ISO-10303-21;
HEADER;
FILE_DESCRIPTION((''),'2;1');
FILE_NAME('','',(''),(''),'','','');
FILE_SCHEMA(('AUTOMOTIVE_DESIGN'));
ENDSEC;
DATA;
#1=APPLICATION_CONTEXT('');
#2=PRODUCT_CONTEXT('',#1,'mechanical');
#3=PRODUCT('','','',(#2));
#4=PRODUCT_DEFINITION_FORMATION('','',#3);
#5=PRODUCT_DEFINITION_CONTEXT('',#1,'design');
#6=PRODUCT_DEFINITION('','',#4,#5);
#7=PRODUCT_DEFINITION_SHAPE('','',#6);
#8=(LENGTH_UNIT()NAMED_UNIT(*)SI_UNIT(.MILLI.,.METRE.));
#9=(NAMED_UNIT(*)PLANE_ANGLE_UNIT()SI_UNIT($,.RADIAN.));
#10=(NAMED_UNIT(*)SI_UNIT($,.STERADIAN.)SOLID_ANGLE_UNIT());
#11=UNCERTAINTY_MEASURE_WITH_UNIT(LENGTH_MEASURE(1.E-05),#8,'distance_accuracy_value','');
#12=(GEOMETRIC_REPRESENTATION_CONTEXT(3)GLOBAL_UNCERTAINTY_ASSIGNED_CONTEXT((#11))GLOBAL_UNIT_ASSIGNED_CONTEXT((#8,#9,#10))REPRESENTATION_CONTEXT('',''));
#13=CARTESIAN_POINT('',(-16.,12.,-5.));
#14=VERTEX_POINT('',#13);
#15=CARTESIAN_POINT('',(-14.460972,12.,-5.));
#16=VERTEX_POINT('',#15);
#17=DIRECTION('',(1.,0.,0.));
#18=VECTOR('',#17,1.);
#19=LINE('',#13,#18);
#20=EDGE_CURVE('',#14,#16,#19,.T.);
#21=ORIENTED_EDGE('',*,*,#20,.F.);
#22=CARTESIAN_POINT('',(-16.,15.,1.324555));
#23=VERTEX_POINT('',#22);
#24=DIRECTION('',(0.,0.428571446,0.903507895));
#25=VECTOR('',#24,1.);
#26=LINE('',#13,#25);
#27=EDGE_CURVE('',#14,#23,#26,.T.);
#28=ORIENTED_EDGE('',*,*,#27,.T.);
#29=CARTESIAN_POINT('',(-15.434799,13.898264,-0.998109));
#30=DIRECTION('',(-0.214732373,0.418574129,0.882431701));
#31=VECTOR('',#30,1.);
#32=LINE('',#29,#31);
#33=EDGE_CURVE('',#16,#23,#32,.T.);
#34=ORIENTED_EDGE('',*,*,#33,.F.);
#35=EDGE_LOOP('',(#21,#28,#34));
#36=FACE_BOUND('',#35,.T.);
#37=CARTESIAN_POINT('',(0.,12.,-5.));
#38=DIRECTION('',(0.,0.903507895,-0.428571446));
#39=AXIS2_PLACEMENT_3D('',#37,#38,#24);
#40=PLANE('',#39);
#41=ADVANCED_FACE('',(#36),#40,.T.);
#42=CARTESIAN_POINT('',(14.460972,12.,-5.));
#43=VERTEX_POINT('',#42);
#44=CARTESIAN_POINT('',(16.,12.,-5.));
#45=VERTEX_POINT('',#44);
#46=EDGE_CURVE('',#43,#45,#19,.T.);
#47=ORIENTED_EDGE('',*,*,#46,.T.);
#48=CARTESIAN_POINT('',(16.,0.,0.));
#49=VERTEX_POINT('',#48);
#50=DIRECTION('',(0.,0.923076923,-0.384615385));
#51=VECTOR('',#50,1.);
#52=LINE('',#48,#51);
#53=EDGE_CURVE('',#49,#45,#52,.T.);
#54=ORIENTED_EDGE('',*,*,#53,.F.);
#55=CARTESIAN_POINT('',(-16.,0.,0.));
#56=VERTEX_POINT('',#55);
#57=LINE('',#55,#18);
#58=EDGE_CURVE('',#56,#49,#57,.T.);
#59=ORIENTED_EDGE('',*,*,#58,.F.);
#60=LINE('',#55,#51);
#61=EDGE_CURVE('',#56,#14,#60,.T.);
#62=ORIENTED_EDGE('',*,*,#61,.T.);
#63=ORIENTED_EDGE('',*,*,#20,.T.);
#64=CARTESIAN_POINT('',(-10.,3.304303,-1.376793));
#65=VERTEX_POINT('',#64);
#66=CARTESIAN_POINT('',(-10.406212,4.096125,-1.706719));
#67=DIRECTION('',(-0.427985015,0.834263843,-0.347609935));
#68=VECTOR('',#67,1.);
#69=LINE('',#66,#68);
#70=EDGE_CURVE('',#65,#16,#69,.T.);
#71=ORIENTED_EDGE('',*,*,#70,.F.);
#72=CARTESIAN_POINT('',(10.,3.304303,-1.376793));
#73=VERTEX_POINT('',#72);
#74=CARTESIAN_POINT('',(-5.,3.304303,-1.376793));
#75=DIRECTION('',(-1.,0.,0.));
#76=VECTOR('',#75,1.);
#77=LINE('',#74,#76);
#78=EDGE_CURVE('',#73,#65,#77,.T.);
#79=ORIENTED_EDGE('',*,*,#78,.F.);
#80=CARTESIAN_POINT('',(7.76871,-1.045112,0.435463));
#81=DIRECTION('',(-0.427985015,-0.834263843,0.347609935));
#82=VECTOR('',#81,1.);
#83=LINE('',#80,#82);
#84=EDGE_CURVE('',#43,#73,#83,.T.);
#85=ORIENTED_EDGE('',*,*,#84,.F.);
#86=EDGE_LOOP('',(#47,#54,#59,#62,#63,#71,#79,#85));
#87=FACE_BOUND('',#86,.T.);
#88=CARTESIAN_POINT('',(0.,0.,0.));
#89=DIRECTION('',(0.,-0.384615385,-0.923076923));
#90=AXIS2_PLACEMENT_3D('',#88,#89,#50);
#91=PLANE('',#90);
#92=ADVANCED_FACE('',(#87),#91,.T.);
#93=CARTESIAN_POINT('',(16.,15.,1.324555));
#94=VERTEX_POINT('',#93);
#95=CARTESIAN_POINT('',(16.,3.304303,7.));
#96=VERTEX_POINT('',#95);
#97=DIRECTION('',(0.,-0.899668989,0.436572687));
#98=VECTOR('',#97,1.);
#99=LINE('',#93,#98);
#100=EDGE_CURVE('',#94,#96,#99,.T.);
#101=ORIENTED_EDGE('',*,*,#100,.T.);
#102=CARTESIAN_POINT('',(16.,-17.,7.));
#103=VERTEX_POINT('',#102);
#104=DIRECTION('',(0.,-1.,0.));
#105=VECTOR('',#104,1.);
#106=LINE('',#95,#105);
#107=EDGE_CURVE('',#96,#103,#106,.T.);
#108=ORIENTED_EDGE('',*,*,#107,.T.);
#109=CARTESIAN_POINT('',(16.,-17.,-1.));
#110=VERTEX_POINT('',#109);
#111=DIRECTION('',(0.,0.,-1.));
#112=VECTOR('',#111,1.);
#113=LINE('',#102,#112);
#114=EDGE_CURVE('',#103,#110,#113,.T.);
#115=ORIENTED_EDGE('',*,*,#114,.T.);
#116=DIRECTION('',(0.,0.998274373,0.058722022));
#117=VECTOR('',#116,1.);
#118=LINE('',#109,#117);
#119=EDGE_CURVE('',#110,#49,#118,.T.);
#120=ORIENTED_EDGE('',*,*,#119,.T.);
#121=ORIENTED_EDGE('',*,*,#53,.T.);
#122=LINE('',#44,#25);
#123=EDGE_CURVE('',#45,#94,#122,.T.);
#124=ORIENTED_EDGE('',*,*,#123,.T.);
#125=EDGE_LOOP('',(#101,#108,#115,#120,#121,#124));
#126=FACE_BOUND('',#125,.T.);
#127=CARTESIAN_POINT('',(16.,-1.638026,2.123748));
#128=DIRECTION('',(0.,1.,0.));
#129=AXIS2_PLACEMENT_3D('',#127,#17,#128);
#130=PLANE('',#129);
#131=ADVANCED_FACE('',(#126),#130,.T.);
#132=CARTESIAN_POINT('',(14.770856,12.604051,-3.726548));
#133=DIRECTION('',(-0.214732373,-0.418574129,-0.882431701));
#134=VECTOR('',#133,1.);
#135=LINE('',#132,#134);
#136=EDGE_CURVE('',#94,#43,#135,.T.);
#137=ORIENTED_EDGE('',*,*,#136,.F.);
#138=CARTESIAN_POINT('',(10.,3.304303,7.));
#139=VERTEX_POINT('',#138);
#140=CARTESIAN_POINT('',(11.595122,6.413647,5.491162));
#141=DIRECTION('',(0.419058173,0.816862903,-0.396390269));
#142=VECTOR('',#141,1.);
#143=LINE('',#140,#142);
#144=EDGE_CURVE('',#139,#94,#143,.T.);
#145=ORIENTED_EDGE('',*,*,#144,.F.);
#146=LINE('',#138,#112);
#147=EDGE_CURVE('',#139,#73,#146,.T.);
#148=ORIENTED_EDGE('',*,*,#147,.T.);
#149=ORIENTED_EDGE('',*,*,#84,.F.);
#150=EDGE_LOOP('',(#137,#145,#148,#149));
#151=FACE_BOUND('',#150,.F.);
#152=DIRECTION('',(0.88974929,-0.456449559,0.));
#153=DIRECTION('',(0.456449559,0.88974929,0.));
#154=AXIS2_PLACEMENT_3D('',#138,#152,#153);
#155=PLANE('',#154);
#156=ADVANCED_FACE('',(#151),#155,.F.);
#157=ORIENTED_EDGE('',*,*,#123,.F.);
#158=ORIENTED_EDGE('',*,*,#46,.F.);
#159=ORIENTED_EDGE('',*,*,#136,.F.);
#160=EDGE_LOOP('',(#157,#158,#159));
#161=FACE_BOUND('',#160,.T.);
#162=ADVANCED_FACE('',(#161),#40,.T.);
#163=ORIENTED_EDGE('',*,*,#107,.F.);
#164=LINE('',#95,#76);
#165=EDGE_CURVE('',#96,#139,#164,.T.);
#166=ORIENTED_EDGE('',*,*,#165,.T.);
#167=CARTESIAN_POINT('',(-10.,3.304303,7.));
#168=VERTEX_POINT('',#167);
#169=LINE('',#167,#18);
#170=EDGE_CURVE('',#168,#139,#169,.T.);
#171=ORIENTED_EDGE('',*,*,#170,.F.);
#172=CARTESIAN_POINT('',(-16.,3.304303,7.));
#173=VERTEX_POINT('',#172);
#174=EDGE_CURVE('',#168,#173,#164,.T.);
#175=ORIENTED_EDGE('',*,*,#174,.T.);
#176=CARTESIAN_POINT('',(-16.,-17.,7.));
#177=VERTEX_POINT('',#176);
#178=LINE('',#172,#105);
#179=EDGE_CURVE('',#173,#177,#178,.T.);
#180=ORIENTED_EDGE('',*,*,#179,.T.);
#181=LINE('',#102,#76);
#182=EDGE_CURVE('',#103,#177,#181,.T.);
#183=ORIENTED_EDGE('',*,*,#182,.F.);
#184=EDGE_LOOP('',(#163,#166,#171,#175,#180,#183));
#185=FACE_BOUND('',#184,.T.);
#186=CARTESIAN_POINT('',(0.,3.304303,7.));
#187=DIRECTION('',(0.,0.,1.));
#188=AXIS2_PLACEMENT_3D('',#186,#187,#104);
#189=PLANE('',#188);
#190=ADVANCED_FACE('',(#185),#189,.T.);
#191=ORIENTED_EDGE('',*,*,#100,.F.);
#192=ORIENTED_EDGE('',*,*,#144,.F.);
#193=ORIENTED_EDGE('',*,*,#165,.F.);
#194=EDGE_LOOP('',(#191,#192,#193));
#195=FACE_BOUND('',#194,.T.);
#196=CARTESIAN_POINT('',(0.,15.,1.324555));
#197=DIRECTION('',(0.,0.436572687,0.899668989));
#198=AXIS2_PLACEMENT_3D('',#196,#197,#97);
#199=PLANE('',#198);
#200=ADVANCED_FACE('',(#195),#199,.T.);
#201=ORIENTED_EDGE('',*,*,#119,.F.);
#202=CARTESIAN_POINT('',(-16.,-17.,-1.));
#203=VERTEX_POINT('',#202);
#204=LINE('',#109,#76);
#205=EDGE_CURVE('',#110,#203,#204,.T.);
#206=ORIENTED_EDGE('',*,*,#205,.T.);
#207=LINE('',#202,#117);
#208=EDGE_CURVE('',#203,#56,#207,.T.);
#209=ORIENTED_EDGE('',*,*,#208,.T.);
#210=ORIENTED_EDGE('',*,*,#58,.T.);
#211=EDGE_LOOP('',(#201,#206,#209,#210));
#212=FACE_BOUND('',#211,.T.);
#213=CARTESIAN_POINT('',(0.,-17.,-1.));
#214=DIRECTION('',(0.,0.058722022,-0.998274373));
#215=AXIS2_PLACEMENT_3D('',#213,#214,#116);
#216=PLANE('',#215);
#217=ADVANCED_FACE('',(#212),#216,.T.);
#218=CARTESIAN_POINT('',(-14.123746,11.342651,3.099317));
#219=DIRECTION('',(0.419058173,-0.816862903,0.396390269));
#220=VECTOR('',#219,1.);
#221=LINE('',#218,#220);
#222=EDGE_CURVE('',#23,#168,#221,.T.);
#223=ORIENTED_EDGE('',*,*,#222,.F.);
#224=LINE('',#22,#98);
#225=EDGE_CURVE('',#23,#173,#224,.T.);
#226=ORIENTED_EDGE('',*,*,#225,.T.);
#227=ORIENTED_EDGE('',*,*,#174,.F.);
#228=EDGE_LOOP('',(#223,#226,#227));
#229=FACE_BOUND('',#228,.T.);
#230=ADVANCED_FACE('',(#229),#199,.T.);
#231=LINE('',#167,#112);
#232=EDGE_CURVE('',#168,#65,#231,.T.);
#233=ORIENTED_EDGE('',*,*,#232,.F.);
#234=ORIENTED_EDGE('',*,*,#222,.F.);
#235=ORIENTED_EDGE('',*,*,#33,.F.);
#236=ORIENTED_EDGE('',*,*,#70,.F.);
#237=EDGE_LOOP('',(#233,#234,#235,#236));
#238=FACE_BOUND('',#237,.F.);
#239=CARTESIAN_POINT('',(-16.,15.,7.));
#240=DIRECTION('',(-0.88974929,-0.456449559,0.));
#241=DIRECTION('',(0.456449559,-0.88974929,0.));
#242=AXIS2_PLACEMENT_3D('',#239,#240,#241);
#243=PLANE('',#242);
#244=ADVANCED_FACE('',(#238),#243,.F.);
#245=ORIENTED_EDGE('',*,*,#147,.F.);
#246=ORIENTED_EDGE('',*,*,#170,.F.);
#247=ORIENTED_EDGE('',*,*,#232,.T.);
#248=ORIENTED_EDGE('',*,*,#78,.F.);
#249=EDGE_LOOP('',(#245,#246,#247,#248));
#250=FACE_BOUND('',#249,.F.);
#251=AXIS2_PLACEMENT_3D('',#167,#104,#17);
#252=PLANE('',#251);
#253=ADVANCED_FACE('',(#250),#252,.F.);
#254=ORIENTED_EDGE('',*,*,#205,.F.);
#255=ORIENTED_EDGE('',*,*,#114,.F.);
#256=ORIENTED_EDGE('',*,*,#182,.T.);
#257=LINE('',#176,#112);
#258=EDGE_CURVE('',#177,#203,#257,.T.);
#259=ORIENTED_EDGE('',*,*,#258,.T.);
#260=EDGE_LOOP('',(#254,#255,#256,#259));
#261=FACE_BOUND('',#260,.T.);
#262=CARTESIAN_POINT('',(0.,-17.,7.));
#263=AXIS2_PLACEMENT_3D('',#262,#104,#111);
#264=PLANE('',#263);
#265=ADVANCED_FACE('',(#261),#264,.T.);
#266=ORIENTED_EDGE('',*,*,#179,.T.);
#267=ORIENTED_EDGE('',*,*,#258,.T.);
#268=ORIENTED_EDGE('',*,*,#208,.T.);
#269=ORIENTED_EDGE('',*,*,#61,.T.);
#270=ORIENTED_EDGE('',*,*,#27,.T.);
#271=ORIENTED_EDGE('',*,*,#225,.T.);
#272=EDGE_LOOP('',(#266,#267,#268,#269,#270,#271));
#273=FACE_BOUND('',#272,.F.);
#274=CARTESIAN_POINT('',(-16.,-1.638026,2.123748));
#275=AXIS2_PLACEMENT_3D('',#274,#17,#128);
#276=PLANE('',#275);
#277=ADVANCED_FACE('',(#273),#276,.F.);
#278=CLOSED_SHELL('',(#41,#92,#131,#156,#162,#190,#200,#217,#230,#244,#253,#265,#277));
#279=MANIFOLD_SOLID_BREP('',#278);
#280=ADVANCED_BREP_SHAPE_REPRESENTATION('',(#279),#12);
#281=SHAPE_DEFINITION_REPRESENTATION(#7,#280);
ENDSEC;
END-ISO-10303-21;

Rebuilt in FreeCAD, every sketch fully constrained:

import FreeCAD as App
import Part
import Sketcher
Q = App.Units.Quantity

doc = App.newDocument("Part")
body = doc.addObject("PartDesign::Body", "Body")

# Sketch on YZ plane
sketch1 = doc.addObject("Sketcher::SketchObject", "Sketch")
body.addObject(sketch1)
sketch1.AttachmentSupport = (doc.YZ_Plane, [""])
sketch1.MapMode = "FlatFace"
sketch1.addGeometry([
    Part.LineSegment(App.Vector(-17, -1, 0), App.Vector(0, 0, 0)),  # 0
    Part.LineSegment(App.Vector(0, 0, 0), App.Vector(12, -5, 0)),  # 1
    Part.LineSegment(App.Vector(12, -5, 0), App.Vector(15, 1, 0)),  # 2
    Part.LineSegment(App.Vector(15, 1, 0), App.Vector(3, 7, 0)),  # 3
    Part.LineSegment(App.Vector(3, 7, 0), App.Vector(-17, 7, 0)),  # 4
    Part.LineSegment(App.Vector(-17, 7, 0), App.Vector(-17, -1, 0)),  # 5
], False)
sketch1.addConstraint([
    Sketcher.Constraint("Coincident", 0, 2, 1, 1),
    Sketcher.Constraint("Coincident", 1, 2, 2, 1),
    Sketcher.Constraint("Coincident", 2, 2, 3, 1),
    Sketcher.Constraint("Coincident", 3, 2, 4, 1),
    Sketcher.Constraint("Coincident", 4, 2, 5, 1),
    Sketcher.Constraint("Coincident", 5, 2, 0, 1),
    Sketcher.Constraint("Horizontal", 4),
    Sketcher.Constraint("Vertical", 5),
    Sketcher.Constraint("Coincident", 0, 2, -1, 1),
    Sketcher.Constraint("Equal", 1, 3),
    Sketcher.Constraint("DistanceY", 5, 2, 5, 1, Q("8 mm")),
    Sketcher.Constraint("Distance", 1, Q("13 mm")),
    Sketcher.Constraint("Distance", 2, Q("7 mm")),
    Sketcher.Constraint("DistanceX", -1, 1, 1, 2, Q("12 mm")),
    Sketcher.Constraint("DistanceX", -1, 1, 2, 2, Q("15 mm")),
    Sketcher.Constraint("DistanceY", -1, 1, 3, 2, Q("7 mm")),
    Sketcher.Constraint("DistanceX", 4, 2, -1, 1, Q("17 mm")),
])
pad1 = doc.addObject("PartDesign::Pad", "Pad")
body.addObject(pad1)
pad1.Profile = sketch1
pad1.Length = 32
pad1.Midplane = True

# Sketch on XY plane
sketch2 = doc.addObject("Sketcher::SketchObject", "Sketch001")
body.addObject(sketch2)
sketch2.AttachmentSupport = (doc.XY_Plane, [""])
sketch2.MapMode = "FlatFace"
sketch2.AttachmentOffset = App.Placement(App.Vector(0, 0, 7), App.Rotation())
sketch2.addGeometry([
    Part.LineSegment(App.Vector(10, 3, 0), App.Vector(16, 15, 0)),
    Part.LineSegment(App.Vector(16, 15, 0), App.Vector(-16, 15, 0)),
    Part.LineSegment(App.Vector(-16, 15, 0), App.Vector(-10, 3, 0)),
    Part.LineSegment(App.Vector(-10, 3, 0), App.Vector(10, 3, 0)),
], False)
sketch2.addConstraint([
    Sketcher.Constraint("Coincident", 0, 2, 1, 1),
    Sketcher.Constraint("Coincident", 1, 2, 2, 1),
    Sketcher.Constraint("Coincident", 2, 2, 3, 1),
    Sketcher.Constraint("Coincident", 3, 2, 0, 1),
    Sketcher.Constraint("Horizontal", 1),
    Sketcher.Constraint("Horizontal", 3),
    Sketcher.Constraint("Equal", 0, 2),
    Sketcher.Constraint("DistanceX", 1, 2, 1, 1, Q("32 mm")),
    Sketcher.Constraint("DistanceX", 3, 1, 3, 2, Q("20 mm")),
    Sketcher.Constraint("DistanceX", -1, 1, 0, 2, Q("16 mm")),
    Sketcher.Constraint("DistanceY", -1, 1, 0, 2, Q("15 mm")),
    Sketcher.Constraint("Distance", 0, Q("13.144935 mm")),
])
pocket1 = doc.addObject("PartDesign::Pocket", "Pocket")
body.addObject(pocket1)
pocket1.Profile = sketch2
pocket1.Length = 25

doc.recompute()
